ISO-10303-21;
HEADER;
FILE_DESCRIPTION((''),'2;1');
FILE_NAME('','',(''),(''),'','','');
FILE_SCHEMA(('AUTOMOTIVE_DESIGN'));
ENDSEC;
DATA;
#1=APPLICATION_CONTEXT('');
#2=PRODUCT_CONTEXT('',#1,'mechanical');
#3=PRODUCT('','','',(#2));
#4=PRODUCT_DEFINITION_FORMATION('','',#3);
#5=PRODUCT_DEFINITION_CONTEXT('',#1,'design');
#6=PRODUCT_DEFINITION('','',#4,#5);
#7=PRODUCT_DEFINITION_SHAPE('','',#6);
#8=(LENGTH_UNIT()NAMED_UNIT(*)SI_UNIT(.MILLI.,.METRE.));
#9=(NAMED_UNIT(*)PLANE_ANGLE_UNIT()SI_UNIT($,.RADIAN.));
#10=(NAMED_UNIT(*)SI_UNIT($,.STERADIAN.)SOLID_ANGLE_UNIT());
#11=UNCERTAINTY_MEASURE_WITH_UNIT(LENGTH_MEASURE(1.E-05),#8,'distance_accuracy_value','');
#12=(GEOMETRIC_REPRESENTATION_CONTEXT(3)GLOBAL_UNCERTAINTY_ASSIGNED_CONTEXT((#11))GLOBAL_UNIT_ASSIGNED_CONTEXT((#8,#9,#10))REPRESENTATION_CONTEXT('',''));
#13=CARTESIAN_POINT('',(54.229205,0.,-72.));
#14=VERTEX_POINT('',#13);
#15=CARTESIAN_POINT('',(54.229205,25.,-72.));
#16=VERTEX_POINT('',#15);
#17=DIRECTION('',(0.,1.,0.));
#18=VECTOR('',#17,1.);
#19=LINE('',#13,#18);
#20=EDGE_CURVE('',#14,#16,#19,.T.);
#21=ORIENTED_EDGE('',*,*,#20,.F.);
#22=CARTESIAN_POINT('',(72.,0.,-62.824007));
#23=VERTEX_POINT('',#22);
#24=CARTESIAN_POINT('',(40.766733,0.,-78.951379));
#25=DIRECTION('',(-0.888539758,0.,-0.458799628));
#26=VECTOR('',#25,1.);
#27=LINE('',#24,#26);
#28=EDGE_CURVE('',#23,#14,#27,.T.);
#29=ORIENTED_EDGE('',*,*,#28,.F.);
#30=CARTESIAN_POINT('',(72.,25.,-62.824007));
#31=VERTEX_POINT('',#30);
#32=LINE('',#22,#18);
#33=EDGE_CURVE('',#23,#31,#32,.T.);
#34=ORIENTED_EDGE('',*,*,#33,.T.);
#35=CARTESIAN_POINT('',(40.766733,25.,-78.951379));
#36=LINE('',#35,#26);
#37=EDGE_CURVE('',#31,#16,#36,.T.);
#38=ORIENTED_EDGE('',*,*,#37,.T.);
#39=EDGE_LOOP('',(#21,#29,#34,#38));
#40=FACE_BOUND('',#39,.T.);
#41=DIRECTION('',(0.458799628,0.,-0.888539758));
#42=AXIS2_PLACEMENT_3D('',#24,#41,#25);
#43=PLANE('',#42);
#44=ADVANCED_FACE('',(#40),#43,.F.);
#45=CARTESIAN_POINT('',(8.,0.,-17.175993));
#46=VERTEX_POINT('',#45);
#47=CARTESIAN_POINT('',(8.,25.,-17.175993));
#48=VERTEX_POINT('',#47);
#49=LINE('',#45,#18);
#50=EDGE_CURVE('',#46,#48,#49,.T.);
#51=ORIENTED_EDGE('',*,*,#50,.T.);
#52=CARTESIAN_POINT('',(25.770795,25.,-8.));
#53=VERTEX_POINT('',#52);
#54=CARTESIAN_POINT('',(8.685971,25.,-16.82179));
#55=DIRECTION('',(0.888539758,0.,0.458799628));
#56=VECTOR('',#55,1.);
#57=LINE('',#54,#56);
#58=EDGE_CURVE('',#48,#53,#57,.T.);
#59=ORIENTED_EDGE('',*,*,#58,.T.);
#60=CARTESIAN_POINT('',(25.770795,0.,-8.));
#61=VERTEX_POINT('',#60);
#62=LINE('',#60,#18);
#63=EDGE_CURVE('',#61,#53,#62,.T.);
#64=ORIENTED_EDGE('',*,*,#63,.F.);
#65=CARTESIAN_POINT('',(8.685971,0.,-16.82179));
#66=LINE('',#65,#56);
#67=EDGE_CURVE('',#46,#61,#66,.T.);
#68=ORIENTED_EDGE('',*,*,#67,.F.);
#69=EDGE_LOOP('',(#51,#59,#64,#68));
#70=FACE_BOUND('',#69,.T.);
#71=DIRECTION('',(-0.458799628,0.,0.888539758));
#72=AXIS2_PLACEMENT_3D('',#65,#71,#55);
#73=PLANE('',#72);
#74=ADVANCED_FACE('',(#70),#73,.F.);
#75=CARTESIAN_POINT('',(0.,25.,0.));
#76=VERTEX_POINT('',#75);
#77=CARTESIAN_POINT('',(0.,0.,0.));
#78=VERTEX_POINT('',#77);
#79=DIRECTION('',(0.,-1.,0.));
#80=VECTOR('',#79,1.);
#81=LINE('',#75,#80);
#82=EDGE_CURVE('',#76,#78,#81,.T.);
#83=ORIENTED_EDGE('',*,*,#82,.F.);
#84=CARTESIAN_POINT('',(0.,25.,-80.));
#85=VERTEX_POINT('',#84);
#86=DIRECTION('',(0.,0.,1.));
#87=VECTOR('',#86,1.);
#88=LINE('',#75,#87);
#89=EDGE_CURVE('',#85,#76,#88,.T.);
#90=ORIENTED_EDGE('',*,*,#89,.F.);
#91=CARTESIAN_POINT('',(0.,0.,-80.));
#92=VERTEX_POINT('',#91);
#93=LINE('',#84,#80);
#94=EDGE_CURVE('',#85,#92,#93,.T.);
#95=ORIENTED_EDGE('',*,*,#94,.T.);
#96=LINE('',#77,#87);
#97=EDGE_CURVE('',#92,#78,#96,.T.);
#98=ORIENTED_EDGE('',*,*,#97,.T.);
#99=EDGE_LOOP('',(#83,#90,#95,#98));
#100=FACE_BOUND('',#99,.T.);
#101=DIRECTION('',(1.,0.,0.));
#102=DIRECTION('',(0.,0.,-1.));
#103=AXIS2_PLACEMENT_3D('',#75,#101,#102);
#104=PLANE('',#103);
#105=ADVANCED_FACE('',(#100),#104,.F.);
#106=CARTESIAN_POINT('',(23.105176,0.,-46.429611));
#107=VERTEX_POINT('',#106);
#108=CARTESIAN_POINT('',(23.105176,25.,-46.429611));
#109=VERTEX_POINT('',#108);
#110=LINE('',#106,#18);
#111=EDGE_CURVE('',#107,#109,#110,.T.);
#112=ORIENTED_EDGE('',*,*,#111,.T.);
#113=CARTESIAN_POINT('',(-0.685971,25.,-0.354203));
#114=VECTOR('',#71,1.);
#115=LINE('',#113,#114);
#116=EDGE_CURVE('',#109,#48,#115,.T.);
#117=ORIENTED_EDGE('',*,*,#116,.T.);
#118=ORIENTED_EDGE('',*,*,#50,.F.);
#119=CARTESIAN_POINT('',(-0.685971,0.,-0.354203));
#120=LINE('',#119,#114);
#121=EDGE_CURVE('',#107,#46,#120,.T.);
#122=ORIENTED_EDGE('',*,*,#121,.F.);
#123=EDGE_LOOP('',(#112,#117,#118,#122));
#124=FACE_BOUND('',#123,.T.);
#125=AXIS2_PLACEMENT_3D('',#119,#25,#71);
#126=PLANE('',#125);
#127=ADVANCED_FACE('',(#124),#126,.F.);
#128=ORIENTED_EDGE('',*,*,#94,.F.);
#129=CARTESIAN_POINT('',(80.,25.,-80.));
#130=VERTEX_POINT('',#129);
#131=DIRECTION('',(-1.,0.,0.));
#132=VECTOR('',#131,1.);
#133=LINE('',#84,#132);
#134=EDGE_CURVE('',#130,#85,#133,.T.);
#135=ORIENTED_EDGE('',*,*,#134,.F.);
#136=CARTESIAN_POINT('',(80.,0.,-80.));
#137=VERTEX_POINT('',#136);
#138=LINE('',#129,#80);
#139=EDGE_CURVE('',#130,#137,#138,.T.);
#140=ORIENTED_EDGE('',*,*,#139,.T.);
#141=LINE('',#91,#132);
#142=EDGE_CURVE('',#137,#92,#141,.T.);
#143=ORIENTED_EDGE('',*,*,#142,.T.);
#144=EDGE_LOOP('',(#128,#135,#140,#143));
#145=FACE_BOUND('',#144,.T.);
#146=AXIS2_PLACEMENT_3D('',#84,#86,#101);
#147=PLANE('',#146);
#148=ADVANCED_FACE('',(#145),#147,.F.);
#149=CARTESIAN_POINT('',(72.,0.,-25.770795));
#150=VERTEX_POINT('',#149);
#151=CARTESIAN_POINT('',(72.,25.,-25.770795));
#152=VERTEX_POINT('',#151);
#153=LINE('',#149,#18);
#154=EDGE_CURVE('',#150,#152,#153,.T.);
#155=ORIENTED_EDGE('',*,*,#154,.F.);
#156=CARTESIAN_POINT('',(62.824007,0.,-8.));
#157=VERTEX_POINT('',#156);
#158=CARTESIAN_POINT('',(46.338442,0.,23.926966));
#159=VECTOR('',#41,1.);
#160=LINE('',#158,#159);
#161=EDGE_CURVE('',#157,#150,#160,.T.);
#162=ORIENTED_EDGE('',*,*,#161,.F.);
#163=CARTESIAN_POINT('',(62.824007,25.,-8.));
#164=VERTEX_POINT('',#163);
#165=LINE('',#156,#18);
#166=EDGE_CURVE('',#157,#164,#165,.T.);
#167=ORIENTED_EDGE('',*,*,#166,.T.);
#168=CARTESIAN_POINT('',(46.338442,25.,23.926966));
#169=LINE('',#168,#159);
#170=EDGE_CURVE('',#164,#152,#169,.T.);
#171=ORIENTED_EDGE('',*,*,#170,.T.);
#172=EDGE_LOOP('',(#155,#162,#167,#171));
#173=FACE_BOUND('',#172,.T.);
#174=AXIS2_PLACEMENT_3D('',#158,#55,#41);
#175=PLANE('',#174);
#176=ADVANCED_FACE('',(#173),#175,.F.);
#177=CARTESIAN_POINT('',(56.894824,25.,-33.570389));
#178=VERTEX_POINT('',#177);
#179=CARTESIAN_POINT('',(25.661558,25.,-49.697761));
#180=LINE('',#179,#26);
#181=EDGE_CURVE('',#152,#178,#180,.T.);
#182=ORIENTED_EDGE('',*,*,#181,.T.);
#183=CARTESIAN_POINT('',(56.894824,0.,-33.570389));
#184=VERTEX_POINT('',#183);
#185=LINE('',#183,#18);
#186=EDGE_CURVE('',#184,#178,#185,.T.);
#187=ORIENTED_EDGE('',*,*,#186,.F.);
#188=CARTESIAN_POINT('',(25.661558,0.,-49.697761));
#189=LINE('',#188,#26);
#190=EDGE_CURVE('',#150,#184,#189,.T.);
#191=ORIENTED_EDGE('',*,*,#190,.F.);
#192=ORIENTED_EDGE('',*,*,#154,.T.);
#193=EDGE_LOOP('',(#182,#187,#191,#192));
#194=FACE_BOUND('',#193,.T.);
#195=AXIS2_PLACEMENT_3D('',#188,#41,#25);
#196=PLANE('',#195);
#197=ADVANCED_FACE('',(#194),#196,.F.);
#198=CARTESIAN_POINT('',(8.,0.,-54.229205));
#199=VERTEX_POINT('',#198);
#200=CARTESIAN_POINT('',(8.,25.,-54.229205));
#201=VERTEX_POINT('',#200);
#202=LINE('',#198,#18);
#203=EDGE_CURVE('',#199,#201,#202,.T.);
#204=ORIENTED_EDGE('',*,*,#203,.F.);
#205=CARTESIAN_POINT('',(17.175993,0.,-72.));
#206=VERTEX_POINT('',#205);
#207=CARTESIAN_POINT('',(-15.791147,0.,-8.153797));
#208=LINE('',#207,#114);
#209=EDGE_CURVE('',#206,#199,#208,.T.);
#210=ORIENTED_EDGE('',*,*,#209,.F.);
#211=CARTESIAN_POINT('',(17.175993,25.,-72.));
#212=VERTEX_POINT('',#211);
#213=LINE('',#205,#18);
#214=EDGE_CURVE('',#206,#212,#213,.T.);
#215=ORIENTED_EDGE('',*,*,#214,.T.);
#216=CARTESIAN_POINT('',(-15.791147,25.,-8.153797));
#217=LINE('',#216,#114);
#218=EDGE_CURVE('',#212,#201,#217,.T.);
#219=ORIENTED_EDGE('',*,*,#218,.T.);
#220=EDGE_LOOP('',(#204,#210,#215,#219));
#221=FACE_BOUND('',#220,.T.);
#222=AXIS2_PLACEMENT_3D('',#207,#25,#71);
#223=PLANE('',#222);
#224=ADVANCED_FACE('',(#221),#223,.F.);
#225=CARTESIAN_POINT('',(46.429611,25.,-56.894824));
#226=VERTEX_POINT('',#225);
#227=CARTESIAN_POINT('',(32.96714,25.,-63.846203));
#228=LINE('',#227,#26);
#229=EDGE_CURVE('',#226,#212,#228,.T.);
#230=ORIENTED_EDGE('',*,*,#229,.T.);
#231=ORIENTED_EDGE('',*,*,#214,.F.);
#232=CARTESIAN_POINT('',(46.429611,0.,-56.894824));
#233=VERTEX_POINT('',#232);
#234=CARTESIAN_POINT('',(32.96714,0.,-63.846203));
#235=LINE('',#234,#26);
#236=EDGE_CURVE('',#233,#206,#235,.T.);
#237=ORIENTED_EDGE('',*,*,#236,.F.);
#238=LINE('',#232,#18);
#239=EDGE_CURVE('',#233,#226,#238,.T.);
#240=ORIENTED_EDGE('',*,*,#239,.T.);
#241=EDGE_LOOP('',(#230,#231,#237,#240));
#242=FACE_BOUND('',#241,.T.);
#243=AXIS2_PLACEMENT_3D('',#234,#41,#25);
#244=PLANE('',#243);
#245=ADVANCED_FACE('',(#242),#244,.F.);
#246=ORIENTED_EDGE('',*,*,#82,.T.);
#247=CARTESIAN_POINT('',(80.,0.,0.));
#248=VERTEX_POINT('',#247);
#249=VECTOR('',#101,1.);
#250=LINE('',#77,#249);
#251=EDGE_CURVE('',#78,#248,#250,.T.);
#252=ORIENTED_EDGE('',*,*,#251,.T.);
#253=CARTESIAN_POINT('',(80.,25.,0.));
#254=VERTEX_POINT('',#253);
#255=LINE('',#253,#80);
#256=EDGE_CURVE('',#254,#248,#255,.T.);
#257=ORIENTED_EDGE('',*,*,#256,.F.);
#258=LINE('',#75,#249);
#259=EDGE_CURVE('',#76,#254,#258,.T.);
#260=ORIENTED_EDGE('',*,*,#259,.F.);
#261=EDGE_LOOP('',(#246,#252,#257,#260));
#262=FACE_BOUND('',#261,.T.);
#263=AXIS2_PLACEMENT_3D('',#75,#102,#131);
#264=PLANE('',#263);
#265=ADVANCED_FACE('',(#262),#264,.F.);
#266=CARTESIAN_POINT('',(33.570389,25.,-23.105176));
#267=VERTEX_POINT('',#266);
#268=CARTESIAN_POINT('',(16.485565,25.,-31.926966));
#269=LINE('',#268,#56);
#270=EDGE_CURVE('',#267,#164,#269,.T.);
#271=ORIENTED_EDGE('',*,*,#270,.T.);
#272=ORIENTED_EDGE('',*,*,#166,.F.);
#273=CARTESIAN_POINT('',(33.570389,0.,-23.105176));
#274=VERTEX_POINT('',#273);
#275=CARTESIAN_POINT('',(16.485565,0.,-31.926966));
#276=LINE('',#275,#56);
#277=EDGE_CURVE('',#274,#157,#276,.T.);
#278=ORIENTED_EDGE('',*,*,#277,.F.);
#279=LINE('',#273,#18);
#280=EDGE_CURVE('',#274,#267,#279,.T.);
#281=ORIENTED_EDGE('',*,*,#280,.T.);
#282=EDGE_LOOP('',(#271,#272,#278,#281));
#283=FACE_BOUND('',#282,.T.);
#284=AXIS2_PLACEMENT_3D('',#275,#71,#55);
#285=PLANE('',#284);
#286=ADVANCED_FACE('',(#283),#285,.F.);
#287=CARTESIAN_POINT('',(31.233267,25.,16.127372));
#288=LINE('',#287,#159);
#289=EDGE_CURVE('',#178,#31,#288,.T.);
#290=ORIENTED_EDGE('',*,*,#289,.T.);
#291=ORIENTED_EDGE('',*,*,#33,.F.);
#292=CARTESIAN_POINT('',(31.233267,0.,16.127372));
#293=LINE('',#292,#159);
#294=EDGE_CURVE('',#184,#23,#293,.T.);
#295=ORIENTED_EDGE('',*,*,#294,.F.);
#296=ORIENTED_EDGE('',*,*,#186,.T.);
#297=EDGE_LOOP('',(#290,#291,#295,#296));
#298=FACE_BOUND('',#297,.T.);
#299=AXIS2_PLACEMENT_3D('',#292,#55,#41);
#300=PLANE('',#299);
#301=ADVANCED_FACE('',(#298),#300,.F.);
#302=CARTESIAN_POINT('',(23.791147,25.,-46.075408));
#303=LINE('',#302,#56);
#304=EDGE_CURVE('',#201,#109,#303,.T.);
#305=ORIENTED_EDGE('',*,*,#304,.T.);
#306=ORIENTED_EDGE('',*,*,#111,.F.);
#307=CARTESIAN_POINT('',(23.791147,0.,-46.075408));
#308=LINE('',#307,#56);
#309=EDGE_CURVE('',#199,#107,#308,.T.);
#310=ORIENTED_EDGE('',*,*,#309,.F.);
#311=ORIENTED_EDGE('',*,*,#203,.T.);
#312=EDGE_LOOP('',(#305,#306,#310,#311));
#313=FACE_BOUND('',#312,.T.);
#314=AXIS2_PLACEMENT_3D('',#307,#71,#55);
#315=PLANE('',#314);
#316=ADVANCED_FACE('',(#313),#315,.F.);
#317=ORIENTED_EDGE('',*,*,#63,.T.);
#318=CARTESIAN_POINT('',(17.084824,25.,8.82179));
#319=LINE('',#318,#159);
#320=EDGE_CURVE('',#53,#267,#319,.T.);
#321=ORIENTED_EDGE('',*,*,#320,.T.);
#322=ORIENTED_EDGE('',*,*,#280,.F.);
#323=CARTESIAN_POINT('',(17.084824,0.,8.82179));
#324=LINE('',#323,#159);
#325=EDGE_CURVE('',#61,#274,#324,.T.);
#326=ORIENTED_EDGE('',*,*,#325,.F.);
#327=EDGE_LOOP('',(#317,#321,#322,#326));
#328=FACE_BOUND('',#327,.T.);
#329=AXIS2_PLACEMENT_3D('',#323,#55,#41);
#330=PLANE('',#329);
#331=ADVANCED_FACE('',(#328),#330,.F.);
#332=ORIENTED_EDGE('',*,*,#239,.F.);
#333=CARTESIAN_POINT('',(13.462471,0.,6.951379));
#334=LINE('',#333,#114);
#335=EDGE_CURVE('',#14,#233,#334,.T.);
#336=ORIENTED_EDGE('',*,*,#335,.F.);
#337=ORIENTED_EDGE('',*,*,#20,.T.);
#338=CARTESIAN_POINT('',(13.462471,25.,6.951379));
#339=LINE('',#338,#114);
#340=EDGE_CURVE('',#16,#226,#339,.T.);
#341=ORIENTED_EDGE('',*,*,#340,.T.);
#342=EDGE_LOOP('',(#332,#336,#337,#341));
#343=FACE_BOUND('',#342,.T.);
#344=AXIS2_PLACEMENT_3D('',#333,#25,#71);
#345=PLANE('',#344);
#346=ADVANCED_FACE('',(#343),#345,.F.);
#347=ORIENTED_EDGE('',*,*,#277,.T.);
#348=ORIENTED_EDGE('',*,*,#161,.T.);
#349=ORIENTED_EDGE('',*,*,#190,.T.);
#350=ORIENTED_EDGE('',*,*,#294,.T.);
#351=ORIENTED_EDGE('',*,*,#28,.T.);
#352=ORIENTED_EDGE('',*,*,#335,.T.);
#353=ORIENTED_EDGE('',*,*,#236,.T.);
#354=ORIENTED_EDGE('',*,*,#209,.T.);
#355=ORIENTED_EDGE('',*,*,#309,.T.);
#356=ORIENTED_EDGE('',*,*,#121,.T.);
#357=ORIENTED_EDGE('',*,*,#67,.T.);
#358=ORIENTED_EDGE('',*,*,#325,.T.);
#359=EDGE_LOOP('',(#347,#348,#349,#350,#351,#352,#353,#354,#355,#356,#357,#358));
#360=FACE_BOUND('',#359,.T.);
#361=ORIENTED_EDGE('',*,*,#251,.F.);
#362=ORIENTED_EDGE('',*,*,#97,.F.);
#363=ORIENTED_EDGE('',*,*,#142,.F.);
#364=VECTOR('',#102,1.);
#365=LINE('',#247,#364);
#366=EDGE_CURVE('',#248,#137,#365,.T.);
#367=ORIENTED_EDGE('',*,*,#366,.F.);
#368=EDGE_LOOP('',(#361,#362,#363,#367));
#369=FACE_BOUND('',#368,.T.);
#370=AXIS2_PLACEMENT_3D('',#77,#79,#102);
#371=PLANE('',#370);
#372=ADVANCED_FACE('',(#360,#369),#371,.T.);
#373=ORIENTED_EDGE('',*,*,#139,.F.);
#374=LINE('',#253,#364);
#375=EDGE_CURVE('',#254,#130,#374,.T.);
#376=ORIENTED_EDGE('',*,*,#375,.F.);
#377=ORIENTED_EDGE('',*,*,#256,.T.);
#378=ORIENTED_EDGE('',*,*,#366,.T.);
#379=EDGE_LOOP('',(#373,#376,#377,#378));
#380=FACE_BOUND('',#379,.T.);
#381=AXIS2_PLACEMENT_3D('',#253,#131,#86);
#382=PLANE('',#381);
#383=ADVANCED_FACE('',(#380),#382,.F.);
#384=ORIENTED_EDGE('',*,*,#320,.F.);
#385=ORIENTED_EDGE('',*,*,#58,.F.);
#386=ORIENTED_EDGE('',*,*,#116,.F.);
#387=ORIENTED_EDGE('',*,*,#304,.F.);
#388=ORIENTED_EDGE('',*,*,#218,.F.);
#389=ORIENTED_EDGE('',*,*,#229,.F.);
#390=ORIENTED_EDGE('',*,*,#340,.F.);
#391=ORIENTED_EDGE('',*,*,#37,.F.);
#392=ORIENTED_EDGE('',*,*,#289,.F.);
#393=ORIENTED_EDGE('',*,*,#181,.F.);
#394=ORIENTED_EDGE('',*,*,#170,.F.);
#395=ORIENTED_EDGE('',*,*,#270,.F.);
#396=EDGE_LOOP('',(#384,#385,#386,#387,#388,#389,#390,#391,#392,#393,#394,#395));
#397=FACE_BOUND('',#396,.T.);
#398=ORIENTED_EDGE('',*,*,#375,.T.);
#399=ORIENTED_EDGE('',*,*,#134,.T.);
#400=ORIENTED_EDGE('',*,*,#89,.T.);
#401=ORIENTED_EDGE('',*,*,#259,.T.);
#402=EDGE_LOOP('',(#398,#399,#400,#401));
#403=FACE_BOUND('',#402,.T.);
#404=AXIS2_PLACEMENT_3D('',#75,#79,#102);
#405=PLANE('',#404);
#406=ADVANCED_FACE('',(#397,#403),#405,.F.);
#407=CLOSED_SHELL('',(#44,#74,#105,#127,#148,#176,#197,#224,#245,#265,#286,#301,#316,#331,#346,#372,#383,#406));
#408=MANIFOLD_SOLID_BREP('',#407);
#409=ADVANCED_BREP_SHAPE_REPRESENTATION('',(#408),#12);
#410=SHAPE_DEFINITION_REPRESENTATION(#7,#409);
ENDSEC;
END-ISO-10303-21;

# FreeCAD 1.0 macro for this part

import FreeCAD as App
import Part
import Sketcher

V = App.Vector
Q = App.Units.Quantity


def add_polygon(sketch, points):
    """Adds a closed chain of lines whose ends are joined by coincident constraints."""
    first, n = sketch.GeometryCount, len(points)
    for a, b in zip(points, points[1:] + points[:1]):
        sketch.addGeometry(Part.LineSegment(App.Vector(*a, 0), App.Vector(*b, 0)), False)
    for i in range(n):
        sketch.addConstraint(Sketcher.Constraint("Coincident", first + i, 2, first + (i + 1) % n, 1))

doc = App.newDocument("Part")
body = doc.addObject("PartDesign::Body", "Body")

sketch1 = doc.addObject("Sketcher::SketchObject", "Sketch")
body.addObject(sketch1)
sketch1.AttachmentSupport = (doc.XZ_Plane, [""])
sketch1.MapMode = "FlatFace"
add_polygon(sketch1, [(0, -80), (0, 0), (80, 0), (80, -80)])
sketch1.addConstraint(Sketcher.Constraint("Vertical", 0))
sketch1.addConstraint(Sketcher.Constraint("Horizontal", 1))
sketch1.addConstraint(Sketcher.Constraint("Vertical", 2))
sketch1.addConstraint(Sketcher.Constraint("Horizontal", 3))
sketch1.addConstraint(Sketcher.Constraint("Coincident", 0, 2, -1, 1))
sketch1.addConstraint(Sketcher.Constraint("Equal", 3, 0))
sketch1.addConstraint(Sketcher.Constraint("DistanceX", 1, 1, 1, 2, Q("80 mm")))
pad1 = doc.addObject("PartDesign::Pad", "Pad")
body.addObject(pad1)
pad1.Profile = sketch1
pad1.Length = 25
pad1.Reversed = True

sketch2 = doc.addObject("Sketcher::SketchObject", "Sketch001")
body.addObject(sketch2)
sketch2.AttachmentSupport = (doc.XZ_Plane, [""])
sketch2.MapMode = "FlatFace"
sketch2.AttachmentOffset = App.Placement(V(0, 0, -25), App.Rotation())
add_polygon(sketch2, [(46.429611, -56.894824), (17.175993, -72), (8, -54.229205), (23.105176, -46.429611), (8, -17.175993), (25.770795, -8), (33.570389, -23.105176), (62.824007, -8), (72, -25.770795), (56.894824, -33.570389), (72, -62.824007), (54.229205, -72)])
sketch2.addConstraint(Sketcher.Constraint("Perpendicular", 0, 1))
sketch2.addConstraint(Sketcher.Constraint("Perpendicular", 1, 2))
sketch2.addConstraint(Sketcher.Constraint("Perpendicular", 2, 3))
sketch2.addConstraint(Sketcher.Constraint("Perpendicular", 3, 4))
sketch2.addConstraint(Sketcher.Constraint("Perpendicular", 4, 5))
sketch2.addConstraint(Sketcher.Constraint("Perpendicular", 5, 6))
sketch2.addConstraint(Sketcher.Constraint("Perpendicular", 6, 7))
sketch2.addConstraint(Sketcher.Constraint("Perpendicular", 7, 8))
sketch2.addConstraint(Sketcher.Constraint("Perpendicular", 8, 9))
sketch2.addConstraint(Sketcher.Constraint("Perpendicular", 9, 10))
sketch2.addConstraint(Sketcher.Constraint("Perpendicular", 10, 11))
sketch2.addConstraint(Sketcher.Constraint("Horizontal", 4, 2, 6, 2))
sketch2.addConstraint(Sketcher.Constraint("Horizontal", 0, 2, 10, 2))
sketch2.addConstraint(Sketcher.Constraint("Vertical", 1, 2, 3, 2))
sketch2.addConstraint(Sketcher.Constraint("Vertical", 7, 2, 9, 2))
sketch2.addConstraint(Sketcher.Constraint("Equal", 0, 3))
sketch2.addConstraint(Sketcher.Constraint("Equal", 1, 4))
sketch2.addConstraint(Sketcher.Constraint("Equal", 2, 5))
sketch2.addConstraint(Sketcher.Constraint("Equal", 4, 7))
sketch2.addConstraint(Sketcher.Constraint("Distance", 1, Q("20 mm")))
sketch2.addConstraint(Sketcher.Constraint("Distance", 2, Q("17 mm")))
sketch2.addConstraint(Sketcher.Constraint("DistanceY", 0, 2, -1, 1, Q("72 mm")))
sketch2.addConstraint(Sketcher.Constraint("DistanceX", -1, 1, 1, 2, Q("8 mm")))
sketch2.addConstraint(Sketcher.Constraint("DistanceY", 4, 2, -1, 1, Q("8 mm")))
pocket1 = doc.addObject("PartDesign::Pocket", "Pocket")
body.addObject(pocket1)
pocket1.Profile = sketch2
pocket1.Type = "ThroughAll"
pocket1.Reversed = True

doc.recompute()
